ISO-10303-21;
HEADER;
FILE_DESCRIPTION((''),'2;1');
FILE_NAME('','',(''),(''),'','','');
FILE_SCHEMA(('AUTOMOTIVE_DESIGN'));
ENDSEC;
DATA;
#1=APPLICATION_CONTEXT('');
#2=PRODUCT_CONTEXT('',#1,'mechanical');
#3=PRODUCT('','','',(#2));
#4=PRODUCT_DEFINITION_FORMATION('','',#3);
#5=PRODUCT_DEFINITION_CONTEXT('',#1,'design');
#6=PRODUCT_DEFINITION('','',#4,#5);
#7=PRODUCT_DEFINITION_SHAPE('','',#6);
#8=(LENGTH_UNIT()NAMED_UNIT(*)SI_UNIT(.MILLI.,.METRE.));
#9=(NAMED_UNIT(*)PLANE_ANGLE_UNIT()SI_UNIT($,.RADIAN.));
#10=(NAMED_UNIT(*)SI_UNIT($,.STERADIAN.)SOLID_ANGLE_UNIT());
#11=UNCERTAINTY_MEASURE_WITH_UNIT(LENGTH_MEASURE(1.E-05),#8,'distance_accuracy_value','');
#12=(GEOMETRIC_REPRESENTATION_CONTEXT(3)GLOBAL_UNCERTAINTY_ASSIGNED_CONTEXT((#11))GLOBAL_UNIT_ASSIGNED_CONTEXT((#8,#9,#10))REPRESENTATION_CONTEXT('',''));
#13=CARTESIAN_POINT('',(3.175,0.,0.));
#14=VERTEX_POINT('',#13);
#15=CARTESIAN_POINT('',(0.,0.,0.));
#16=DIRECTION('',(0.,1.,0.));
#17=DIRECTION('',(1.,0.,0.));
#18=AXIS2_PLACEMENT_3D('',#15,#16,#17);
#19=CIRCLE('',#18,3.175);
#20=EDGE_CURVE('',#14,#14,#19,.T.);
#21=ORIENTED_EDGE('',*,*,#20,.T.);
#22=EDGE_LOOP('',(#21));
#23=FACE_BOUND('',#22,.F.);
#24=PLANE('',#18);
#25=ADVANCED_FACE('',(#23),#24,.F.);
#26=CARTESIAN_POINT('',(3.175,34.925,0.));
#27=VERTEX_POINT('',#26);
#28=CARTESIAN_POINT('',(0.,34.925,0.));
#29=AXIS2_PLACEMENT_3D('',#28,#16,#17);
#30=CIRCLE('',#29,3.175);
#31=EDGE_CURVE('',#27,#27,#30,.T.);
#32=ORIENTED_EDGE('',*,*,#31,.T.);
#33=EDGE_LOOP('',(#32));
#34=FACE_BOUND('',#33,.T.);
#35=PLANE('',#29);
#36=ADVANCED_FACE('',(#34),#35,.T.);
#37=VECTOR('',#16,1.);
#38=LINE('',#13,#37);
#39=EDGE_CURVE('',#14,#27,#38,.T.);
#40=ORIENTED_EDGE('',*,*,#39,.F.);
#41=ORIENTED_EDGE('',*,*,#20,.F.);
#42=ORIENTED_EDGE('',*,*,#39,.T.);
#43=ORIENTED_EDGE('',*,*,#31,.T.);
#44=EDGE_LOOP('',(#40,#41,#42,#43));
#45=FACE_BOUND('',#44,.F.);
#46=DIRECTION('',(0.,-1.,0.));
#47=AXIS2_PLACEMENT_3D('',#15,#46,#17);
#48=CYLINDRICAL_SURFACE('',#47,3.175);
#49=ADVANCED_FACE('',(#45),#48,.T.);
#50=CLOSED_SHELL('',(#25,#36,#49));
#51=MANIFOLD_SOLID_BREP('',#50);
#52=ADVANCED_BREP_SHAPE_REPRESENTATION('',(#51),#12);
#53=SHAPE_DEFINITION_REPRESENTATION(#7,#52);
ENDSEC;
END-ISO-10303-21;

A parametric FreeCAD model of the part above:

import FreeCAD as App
import Part
import Sketcher
from FreeCAD import Vector
Q = App.Units.Quantity

doc = App.newDocument("Part")
params = doc.addObject("Spreadsheet::Sheet", "Params")
for row, (alias, value) in enumerate([
    ("sketch1_diameter", "0.25 in"),
    ("pad1_length", "1.375 in"),
], start=1):
    params.set(f"A{row}", alias)
    params.set(f"B{row}", "=" + value)
    params.setAlias(f"B{row}", alias)

body = doc.addObject("PartDesign::Body", "Body")

# Sketch on XZ plane
sketch1 = body.newObject("Sketcher::SketchObject", "Sketch")
sketch1.AttachmentSupport = (doc.getObject("XZ_Plane"), [""])
sketch1.MapMode = "FlatFace"
sketch1.addGeometry(Part.Circle(Vector(0, 0, 0), Vector(0, 0, 1), 3.175), False)
sketch1.addConstraint(Sketcher.Constraint("Coincident", 0, 3, -1, 1))
sketch1.addConstraint(Sketcher.Constraint("Diameter", 0, Q("0.25 in")))
sketch1.setExpression("Constraints[1]", "Params.sketch1_diameter")
pad1 = body.newObject("PartDesign::Pad", "Pad")
pad1.Profile = sketch1
pad1.setExpression("Length", "Params.pad1_length")
pad1.Reversed = True

doc.recompute()
